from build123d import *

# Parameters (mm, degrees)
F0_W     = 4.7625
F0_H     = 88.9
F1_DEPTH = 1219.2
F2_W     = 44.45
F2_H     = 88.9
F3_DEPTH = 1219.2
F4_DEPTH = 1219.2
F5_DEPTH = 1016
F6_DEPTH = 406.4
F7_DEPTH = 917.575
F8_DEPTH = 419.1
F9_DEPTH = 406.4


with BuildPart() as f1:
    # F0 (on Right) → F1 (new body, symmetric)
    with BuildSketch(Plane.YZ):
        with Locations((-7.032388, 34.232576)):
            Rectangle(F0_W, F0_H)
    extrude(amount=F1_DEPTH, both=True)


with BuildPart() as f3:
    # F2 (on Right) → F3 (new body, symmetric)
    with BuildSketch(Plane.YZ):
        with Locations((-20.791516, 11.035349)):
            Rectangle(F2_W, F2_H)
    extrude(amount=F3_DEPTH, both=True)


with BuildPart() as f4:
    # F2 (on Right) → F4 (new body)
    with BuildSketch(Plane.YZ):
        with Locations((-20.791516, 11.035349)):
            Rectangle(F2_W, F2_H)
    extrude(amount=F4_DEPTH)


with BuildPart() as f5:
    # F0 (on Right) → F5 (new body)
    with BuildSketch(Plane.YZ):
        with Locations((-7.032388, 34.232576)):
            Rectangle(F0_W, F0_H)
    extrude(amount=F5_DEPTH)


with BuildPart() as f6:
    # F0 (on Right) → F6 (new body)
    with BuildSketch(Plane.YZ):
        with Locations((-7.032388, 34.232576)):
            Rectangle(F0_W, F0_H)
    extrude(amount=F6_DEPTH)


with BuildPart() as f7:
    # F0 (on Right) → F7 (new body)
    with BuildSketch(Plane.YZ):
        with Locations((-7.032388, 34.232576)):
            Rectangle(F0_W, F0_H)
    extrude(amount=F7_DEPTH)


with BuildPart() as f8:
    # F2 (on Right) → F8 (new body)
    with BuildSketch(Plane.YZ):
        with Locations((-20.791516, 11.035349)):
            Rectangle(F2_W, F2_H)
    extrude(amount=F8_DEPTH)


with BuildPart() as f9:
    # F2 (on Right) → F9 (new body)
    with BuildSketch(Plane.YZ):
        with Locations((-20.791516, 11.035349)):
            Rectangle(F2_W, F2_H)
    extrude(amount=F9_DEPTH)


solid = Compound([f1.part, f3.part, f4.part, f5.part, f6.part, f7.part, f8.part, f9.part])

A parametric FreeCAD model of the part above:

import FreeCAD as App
import Part
import Sketcher
Q = App.Units.Quantity

doc = App.newDocument("Part")
params = doc.addObject("Spreadsheet::Sheet", "Params")
for row, (alias, value) in enumerate([
    ("sketch1_height", "3.5 in"),
    ("sketch1_width", "0.1875 in"),
    ("pad1_length", "96 in"),
    ("sketch2_height", "3.5 in"),
    ("sketch2_width", "1.75 in"),
    ("pad2_length", "96 in"),
    ("sketch3_height", "3.5 in"),
    ("sketch3_width", "1.75 in"),
    ("pad3_length", "48 in"),
    ("sketch4_height", "3.5 in"),
    ("sketch4_width", "0.1875 in"),
    ("pad4_length", "40 in"),
    ("sketch5_height", "3.5 in"),
    ("sketch5_width", "0.1875 in"),
    ("pad5_length", "16 in"),
    ("sketch6_height", "3.5 in"),
    ("sketch6_width", "0.1875 in"),
    ("pad6_length", "36.125 in"),
    ("sketch7_height", "3.5 in"),
    ("sketch7_width", "1.75 in"),
    ("pad7_length", "16.5 in"),
    ("sketch8_height", "3.5 in"),
    ("sketch8_width", "1.75 in"),
    ("pad8_length", "16 in"),
], start=1):
    params.set(f"A{row}", alias)
    params.set(f"B{row}", "=" + value)
    params.setAlias(f"B{row}", alias)

body = doc.addObject("PartDesign::Body", "Body")

sketch1 = doc.addObject("Sketcher::SketchObject", "Sketch")
body.addObject(sketch1)
sketch1.AttachmentSupport = (doc.YZ_Plane, [""])
sketch1.MapMode = "FlatFace"
sketch1.addGeometry([
    Part.LineSegment(App.Vector(-9.413638, 78.682576, 0), App.Vector(-9.413638, -10.217424, 0)),
    Part.LineSegment(App.Vector(-9.413638, -10.217424, 0), App.Vector(-4.651138, -10.217424, 0)),
    Part.LineSegment(App.Vector(-4.651138, -10.217424, 0), App.Vector(-4.651138, 78.682576, 0)),
    Part.LineSegment(App.Vector(-4.651138, 78.682576, 0), App.Vector(-9.413638, 78.682576, 0)),
], False)
sketch1.addConstraint([
    Sketcher.Constraint("Coincident", 0, 2, 1, 1),
    Sketcher.Constraint("Coincident", 1, 2, 2, 1),
    Sketcher.Constraint("Coincident", 2, 2, 3, 1),
    Sketcher.Constraint("Coincident", 3, 2, 0, 1),
    Sketcher.Constraint("Vertical", 0),
    Sketcher.Constraint("Horizontal", 1),
    Sketcher.Constraint("Vertical", 2),
    Sketcher.Constraint("Horizontal", 3),
    Sketcher.Constraint("DistanceY", 0, 2, 0, 1, Q("3.5 in")),
    Sketcher.Constraint("DistanceX", 1, 1, 1, 2, Q("0.1875 in")),
    Sketcher.Constraint("DistanceX", 0, 2, -1, 1, 9.413638),
    Sketcher.Constraint("DistanceY", 0, 2, -1, 1, 10.217424),
])
sketch1.setExpression("Constraints[8]", "Params.sketch1_height")
sketch1.setExpression("Constraints[9]", "Params.sketch1_width")
pad1 = doc.addObject("PartDesign::Pad", "Pad")
body.addObject(pad1)
pad1.Profile = sketch1
pad1.setExpression("Length", "Params.pad1_length")
pad1.Midplane = True
body2 = doc.addObject("PartDesign::Body", "Body001")

sketch2 = doc.addObject("Sketcher::SketchObject", "Sketch001")
body2.addObject(sketch2)
sketch2.AttachmentSupport = (doc.getObject("YZ_Plane001"), [""])
sketch2.MapMode = "FlatFace"
sketch2.addGeometry([
    Part.LineSegment(App.Vector(-43.016516, 55.485349, 0), App.Vector(-43.016516, -33.414651, 0)),
    Part.LineSegment(App.Vector(-43.016516, -33.414651, 0), App.Vector(1.433484, -33.414651, 0)),
    Part.LineSegment(App.Vector(1.433484, -33.414651, 0), App.Vector(1.433484, 55.485349, 0)),
    Part.LineSegment(App.Vector(1.433484, 55.485349, 0), App.Vector(-43.016516, 55.485349, 0)),
], False)
sketch2.addConstraint([
    Sketcher.Constraint("Coincident", 0, 2, 1, 1),
    Sketcher.Constraint("Coincident", 1, 2, 2, 1),
    Sketcher.Constraint("Coincident", 2, 2, 3, 1),
    Sketcher.Constraint("Coincident", 3, 2, 0, 1),
    Sketcher.Constraint("Vertical", 0),
    Sketcher.Constraint("Horizontal", 1),
    Sketcher.Constraint("Vertical", 2),
    Sketcher.Constraint("Horizontal", 3),
    Sketcher.Constraint("DistanceY", 0, 2, 0, 1, Q("3.5 in")),
    Sketcher.Constraint("DistanceX", 1, 1, 1, 2, Q("1.75 in")),
    Sketcher.Constraint("DistanceY", 0, 2, -1, 1, 33.414651),
    Sketcher.Constraint("DistanceX", 0, 2, -1, 1, 43.016516),
])
sketch2.setExpression("Constraints[8]", "Params.sketch2_height")
sketch2.setExpression("Constraints[9]", "Params.sketch2_width")
pad2 = doc.addObject("PartDesign::Pad", "Pad001")
body2.addObject(pad2)
pad2.Profile = sketch2
pad2.setExpression("Length", "Params.pad2_length")
pad2.Midplane = True
body3 = doc.addObject("PartDesign::Body", "Body002")

sketch3 = doc.addObject("Sketcher::SketchObject", "Sketch002")
body3.addObject(sketch3)
sketch3.AttachmentSupport = (doc.getObject("YZ_Plane002"), [""])
sketch3.MapMode = "FlatFace"
sketch3.addGeometry([
    Part.LineSegment(App.Vector(-43.016516, 55.485349, 0), App.Vector(-43.016516, -33.414651, 0)),
    Part.LineSegment(App.Vector(-43.016516, -33.414651, 0), App.Vector(1.433484, -33.414651, 0)),
    Part.LineSegment(App.Vector(1.433484, -33.414651, 0), App.Vector(1.433484, 55.485349, 0)),
    Part.LineSegment(App.Vector(1.433484, 55.485349, 0), App.Vector(-43.016516, 55.485349, 0)),
], False)
sketch3.addConstraint([
    Sketcher.Constraint("Coincident", 0, 2, 1, 1),
    Sketcher.Constraint("Coincident", 1, 2, 2, 1),
    Sketcher.Constraint("Coincident", 2, 2, 3, 1),
    Sketcher.Constraint("Coincident", 3, 2, 0, 1),
    Sketcher.Constraint("Vertical", 0),
    Sketcher.Constraint("Horizontal", 1),
    Sketcher.Constraint("Vertical", 2),
    Sketcher.Constraint("Horizontal", 3),
    Sketcher.Constraint("DistanceY", 0, 2, 0, 1, Q("3.5 in")),
    Sketcher.Constraint("DistanceX", 1, 1, 1, 2, Q("1.75 in")),
    Sketcher.Constraint("DistanceY", 0, 2, -1, 1, 33.414651),
    Sketcher.Constraint("DistanceX", 0, 2, -1, 1, 43.016516),
])
sketch3.setExpression("Constraints[8]", "Params.sketch3_height")
sketch3.setExpression("Constraints[9]", "Params.sketch3_width")
pad3 = doc.addObject("PartDesign::Pad", "Pad002")
body3.addObject(pad3)
pad3.Profile = sketch3
pad3.setExpression("Length", "Params.pad3_length")
body4 = doc.addObject("PartDesign::Body", "Body003")

sketch4 = doc.addObject("Sketcher::SketchObject", "Sketch003")
body4.addObject(sketch4)
sketch4.AttachmentSupport = (doc.getObject("YZ_Plane003"), [""])
sketch4.MapMode = "FlatFace"
sketch4.addGeometry([
    Part.LineSegment(App.Vector(-9.413638, 78.682576, 0), App.Vector(-9.413638, -10.217424, 0)),
    Part.LineSegment(App.Vector(-9.413638, -10.217424, 0), App.Vector(-4.651138, -10.217424, 0)),
    Part.LineSegment(App.Vector(-4.651138, -10.217424, 0), App.Vector(-4.651138, 78.682576, 0)),
    Part.LineSegment(App.Vector(-4.651138, 78.682576, 0), App.Vector(-9.413638, 78.682576, 0)),
], False)
sketch4.addConstraint([
    Sketcher.Constraint("Coincident", 0, 2, 1, 1),
    Sketcher.Constraint("Coincident", 1, 2, 2, 1),
    Sketcher.Constraint("Coincident", 2, 2, 3, 1),
    Sketcher.Constraint("Coincident", 3, 2, 0, 1),
    Sketcher.Constraint("Vertical", 0),
    Sketcher.Constraint("Horizontal", 1),
    Sketcher.Constraint("Vertical", 2),
    Sketcher.Constraint("Horizontal", 3),
    Sketcher.Constraint("DistanceY", 0, 2, 0, 1, Q("3.5 in")),
    Sketcher.Constraint("DistanceX", 1, 1, 1, 2, Q("0.1875 in")),
    Sketcher.Constraint("DistanceX", 0, 2, -1, 1, 9.413638),
    Sketcher.Constraint("DistanceY", 0, 2, -1, 1, 10.217424),
])
sketch4.setExpression("Constraints[8]", "Params.sketch4_height")
sketch4.setExpression("Constraints[9]", "Params.sketch4_width")
pad4 = doc.addObject("PartDesign::Pad", "Pad003")
body4.addObject(pad4)
pad4.Profile = sketch4
pad4.setExpression("Length", "Params.pad4_length")
body5 = doc.addObject("PartDesign::Body", "Body004")

sketch5 = doc.addObject("Sketcher::SketchObject", "Sketch004")
body5.addObject(sketch5)
sketch5.AttachmentSupport = (doc.getObject("YZ_Plane004"), [""])
sketch5.MapMode = "FlatFace"
sketch5.addGeometry([
    Part.LineSegment(App.Vector(-9.413638, 78.682576, 0), App.Vector(-9.413638, -10.217424, 0)),
    Part.LineSegment(App.Vector(-9.413638, -10.217424, 0), App.Vector(-4.651138, -10.217424, 0)),
    Part.LineSegment(App.Vector(-4.651138, -10.217424, 0), App.Vector(-4.651138, 78.682576, 0)),
    Part.LineSegment(App.Vector(-4.651138, 78.682576, 0), App.Vector(-9.413638, 78.682576, 0)),
], False)
sketch5.addConstraint([
    Sketcher.Constraint("Coincident", 0, 2, 1, 1),
    Sketcher.Constraint("Coincident", 1, 2, 2, 1),
    Sketcher.Constraint("Coincident", 2, 2, 3, 1),
    Sketcher.Constraint("Coincident", 3, 2, 0, 1),
    Sketcher.Constraint("Vertical", 0),
    Sketcher.Constraint("Horizontal", 1),
    Sketcher.Constraint("Vertical", 2),
    Sketcher.Constraint("Horizontal", 3),
    Sketcher.Constraint("DistanceY", 0, 2, 0, 1, Q("3.5 in")),
    Sketcher.Constraint("DistanceX", 1, 1, 1, 2, Q("0.1875 in")),
    Sketcher.Constraint("DistanceX", 0, 2, -1, 1, 9.413638),
    Sketcher.Constraint("DistanceY", 0, 2, -1, 1, 10.217424),
])
sketch5.setExpression("Constraints[8]", "Params.sketch5_height")
sketch5.setExpression("Constraints[9]", "Params.sketch5_width")
pad5 = doc.addObject("PartDesign::Pad", "Pad004")
body5.addObject(pad5)
pad5.Profile = sketch5
pad5.setExpression("Length", "Params.pad5_length")
body6 = doc.addObject("PartDesign::Body", "Body005")

sketch6 = doc.addObject("Sketcher::SketchObject", "Sketch005")
body6.addObject(sketch6)
sketch6.AttachmentSupport = (doc.getObject("YZ_Plane005"), [""])
sketch6.MapMode = "FlatFace"
sketch6.addGeometry([
    Part.LineSegment(App.Vector(-9.413638, 78.682576, 0), App.Vector(-9.413638, -10.217424, 0)),
    Part.LineSegment(App.Vector(-9.413638, -10.217424, 0), App.Vector(-4.651138, -10.217424, 0)),
    Part.LineSegment(App.Vector(-4.651138, -10.217424, 0), App.Vector(-4.651138, 78.682576, 0)),
    Part.LineSegment(App.Vector(-4.651138, 78.682576, 0), App.Vector(-9.413638, 78.682576, 0)),
], False)
sketch6.addConstraint([
    Sketcher.Constraint("Coincident", 0, 2, 1, 1),
    Sketcher.Constraint("Coincident", 1, 2, 2, 1),
    Sketcher.Constraint("Coincident", 2, 2, 3, 1),
    Sketcher.Constraint("Coincident", 3, 2, 0, 1),
    Sketcher.Constraint("Vertical", 0),
    Sketcher.Constraint("Horizontal", 1),
    Sketcher.Constraint("Vertical", 2),
    Sketcher.Constraint("Horizontal", 3),
    Sketcher.Constraint("DistanceY", 0, 2, 0, 1, Q("3.5 in")),
    Sketcher.Constraint("DistanceX", 1, 1, 1, 2, Q("0.1875 in")),
    Sketcher.Constraint("DistanceX", 0, 2, -1, 1, 9.413638),
    Sketcher.Constraint("DistanceY", 0, 2, -1, 1, 10.217424),
])
sketch6.setExpression("Constraints[8]", "Params.sketch6_height")
sketch6.setExpression("Constraints[9]", "Params.sketch6_width")
pad6 = doc.addObject("PartDesign::Pad", "Pad005")
body6.addObject(pad6)
pad6.Profile = sketch6
pad6.setExpression("Length", "Params.pad6_length")
body7 = doc.addObject("PartDesign::Body", "Body006")

sketch7 = doc.addObject("Sketcher::SketchObject", "Sketch006")
body7.addObject(sketch7)
sketch7.AttachmentSupport = (doc.getObject("YZ_Plane006"), [""])
sketch7.MapMode = "FlatFace"
sketch7.addGeometry([
    Part.LineSegment(App.Vector(-43.016516, 55.485349, 0), App.Vector(-43.016516, -33.414651, 0)),
    Part.LineSegment(App.Vector(-43.016516, -33.414651, 0), App.Vector(1.433484, -33.414651, 0)),
    Part.LineSegment(App.Vector(1.433484, -33.414651, 0), App.Vector(1.433484, 55.485349, 0)),
    Part.LineSegment(App.Vector(1.433484, 55.485349, 0), App.Vector(-43.016516, 55.485349, 0)),
], False)
sketch7.addConstraint([
    Sketcher.Constraint("Coincident", 0, 2, 1, 1),
    Sketcher.Constraint("Coincident", 1, 2, 2, 1),
    Sketcher.Constraint("Coincident", 2, 2, 3, 1),
    Sketcher.Constraint("Coincident", 3, 2, 0, 1),
    Sketcher.Constraint("Vertical", 0),
    Sketcher.Constraint("Horizontal", 1),
    Sketcher.Constraint("Vertical", 2),
    Sketcher.Constraint("Horizontal", 3),
    Sketcher.Constraint("DistanceY", 0, 2, 0, 1, Q("3.5 in")),
    Sketcher.Constraint("DistanceX", 1, 1, 1, 2, Q("1.75 in")),
    Sketcher.Constraint("DistanceY", 0, 2, -1, 1, 33.414651),
    Sketcher.Constraint("DistanceX", 0, 2, -1, 1, 43.016516),
])
sketch7.setExpression("Constraints[8]", "Params.sketch7_height")
sketch7.setExpression("Constraints[9]", "Params.sketch7_width")
pad7 = doc.addObject("PartDesign::Pad", "Pad006")
body7.addObject(pad7)
pad7.Profile = sketch7
pad7.setExpression("Length", "Params.pad7_length")
body8 = doc.addObject("PartDesign::Body", "Body007")

sketch8 = doc.addObject("Sketcher::SketchObject", "Sketch007")
body8.addObject(sketch8)
sketch8.AttachmentSupport = (doc.getObject("YZ_Plane007"), [""])
sketch8.MapMode = "FlatFace"
sketch8.addGeometry([
    Part.LineSegment(App.Vector(-43.016516, 55.485349, 0), App.Vector(-43.016516, -33.414651, 0)),
    Part.LineSegment(App.Vector(-43.016516, -33.414651, 0), App.Vector(1.433484, -33.414651, 0)),
    Part.LineSegment(App.Vector(1.433484, -33.414651, 0), App.Vector(1.433484, 55.485349, 0)),
    Part.LineSegment(App.Vector(1.433484, 55.485349, 0), App.Vector(-43.016516, 55.485349, 0)),
], False)
sketch8.addConstraint([
    Sketcher.Constraint("Coincident", 0, 2, 1, 1),
    Sketcher.Constraint("Coincident", 1, 2, 2, 1),
    Sketcher.Constraint("Coincident", 2, 2, 3, 1),
    Sketcher.Constraint("Coincident", 3, 2, 0, 1),
    Sketcher.Constraint("Vertical", 0),
    Sketcher.Constraint("Horizontal", 1),
    Sketcher.Constraint("Vertical", 2),
    Sketcher.Constraint("Horizontal", 3),
    Sketcher.Constraint("DistanceY", 0, 2, 0, 1, Q("3.5 in")),
    Sketcher.Constraint("DistanceX", 1, 1, 1, 2, Q("1.75 in")),
    Sketcher.Constraint("DistanceY", 0, 2, -1, 1, 33.414651),
    Sketcher.Constraint("DistanceX", 0, 2, -1, 1, 43.016516),
])
sketch8.setExpression("Constraints[8]", "Params.sketch8_height")
sketch8.setExpression("Constraints[9]", "Params.sketch8_width")
pad8 = doc.addObject("PartDesign::Pad", "Pad007")
body8.addObject(pad8)
pad8.Profile = sketch8
pad8.setExpression("Length", "Params.pad8_length")

doc.recompute()
